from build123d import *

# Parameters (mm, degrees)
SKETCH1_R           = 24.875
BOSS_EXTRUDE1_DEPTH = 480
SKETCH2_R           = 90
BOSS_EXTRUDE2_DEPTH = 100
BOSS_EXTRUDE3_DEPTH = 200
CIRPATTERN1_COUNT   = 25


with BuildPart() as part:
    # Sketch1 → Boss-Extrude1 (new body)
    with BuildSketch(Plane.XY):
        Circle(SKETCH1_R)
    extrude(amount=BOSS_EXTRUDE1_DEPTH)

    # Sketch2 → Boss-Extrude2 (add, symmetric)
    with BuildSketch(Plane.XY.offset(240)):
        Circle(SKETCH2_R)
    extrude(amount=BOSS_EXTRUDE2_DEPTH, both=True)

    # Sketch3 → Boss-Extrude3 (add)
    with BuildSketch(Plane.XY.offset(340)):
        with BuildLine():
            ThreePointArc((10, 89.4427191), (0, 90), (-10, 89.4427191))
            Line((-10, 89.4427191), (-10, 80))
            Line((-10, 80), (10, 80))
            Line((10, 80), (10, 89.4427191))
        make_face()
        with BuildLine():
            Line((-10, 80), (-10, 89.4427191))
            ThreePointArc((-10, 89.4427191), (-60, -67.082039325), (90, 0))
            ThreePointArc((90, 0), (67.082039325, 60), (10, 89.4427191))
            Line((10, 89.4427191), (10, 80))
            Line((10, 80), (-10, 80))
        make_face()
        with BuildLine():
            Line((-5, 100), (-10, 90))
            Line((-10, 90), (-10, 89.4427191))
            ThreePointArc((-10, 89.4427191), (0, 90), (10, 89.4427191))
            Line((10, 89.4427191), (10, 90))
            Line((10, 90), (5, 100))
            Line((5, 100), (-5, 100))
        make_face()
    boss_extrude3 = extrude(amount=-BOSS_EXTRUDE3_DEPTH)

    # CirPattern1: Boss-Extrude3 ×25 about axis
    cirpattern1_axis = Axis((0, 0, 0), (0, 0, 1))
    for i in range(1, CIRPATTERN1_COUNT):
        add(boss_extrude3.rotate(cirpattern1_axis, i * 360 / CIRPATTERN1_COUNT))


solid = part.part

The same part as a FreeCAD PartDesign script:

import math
import FreeCAD as App
import Part
import Sketcher
Q = App.Units.Quantity

doc = App.newDocument("Part")
params = doc.addObject("Spreadsheet::Sheet", "Params")
for row, (alias, value) in enumerate([
    ("sketch1_diameter", "49.75 mm"),
    ("pad1_length", "480 mm"),
    ("sketch2_diameter", "180 mm"),
    ("pad2_length", "200 mm"),
    ("sketch3_radius", "90 mm"),
    ("sketch3_width", "10 mm"),
    ("pad3_length", "200 mm"),
], start=1):
    params.set(f"A{row}", alias)
    params.set(f"B{row}", "=" + value)
    params.setAlias(f"B{row}", alias)

body = doc.addObject("PartDesign::Body", "Body")

sketch1 = body.newObject("Sketcher::SketchObject", "Sketch")
sketch1.AttachmentSupport = (doc.getObject("XY_Plane"), [""])
sketch1.MapMode = "FlatFace"
sketch1.addGeometry(Part.Circle(App.Vector(0, 0, 0), App.Vector(0, 0, 1), 25), False)
sketch1.addConstraint(Sketcher.Constraint("Coincident", 0, 3, -1, 1))
sketch1.addConstraint(Sketcher.Constraint("Diameter", 0, Q("49.75 mm")))
sketch1.setExpression("Constraints[1]", "Params.sketch1_diameter")
pad1 = body.newObject("PartDesign::Pad", "Pad")
pad1.Profile = sketch1
pad1.setExpression("Length", "Params.pad1_length")

sketch2 = body.newObject("Sketcher::SketchObject", "Sketch001")
sketch2.AttachmentSupport = (doc.getObject("XY_Plane"), [""])
sketch2.MapMode = "FlatFace"
sketch2.AttachmentOffset = App.Placement(App.Vector(0, 0, 240), App.Rotation())
sketch2.addGeometry(Part.Circle(App.Vector(0, 0, 0), App.Vector(0, 0, 1), 90), False)
sketch2.addConstraint(Sketcher.Constraint("Coincident", 0, 3, -1, 1))
sketch2.addConstraint(Sketcher.Constraint("Diameter", 0, Q("180 mm")))
sketch2.setExpression("Constraints[1]", "Params.sketch2_diameter")
pad2 = body.newObject("PartDesign::Pad", "Pad001")
pad2.Profile = sketch2
pad2.setExpression("Length", "Params.pad2_length")
pad2.Midplane = True

sketch3 = body.newObject("Sketcher::SketchObject", "Sketch002")
sketch3.AttachmentSupport = (doc.getObject("XY_Plane"), [""])
sketch3.MapMode = "FlatFace"
sketch3.AttachmentOffset = App.Placement(App.Vector(0, 0, 340), App.Rotation())
sketch3.addGeometry(Part.ArcOfCircle(Part.Circle(App.Vector(0, 0, 0), App.Vector(0, 0, 1), 90), math.radians(96), math.radians(444)), False)
sketch3.addGeometry(Part.LineSegment(App.Vector(10, 89.4, 0), App.Vector(10, 90, 0)), False)
sketch3.addGeometry(Part.LineSegment(App.Vector(10, 90, 0), App.Vector(5, 100, 0)), False)
sketch3.addGeometry(Part.LineSegment(App.Vector(5, 100, 0), App.Vector(-5, 100, 0)), False)
sketch3.addGeometry(Part.LineSegment(App.Vector(-5, 100, 0), App.Vector(-10, 90, 0)), False)
sketch3.addGeometry(Part.LineSegment(App.Vector(-10, 90, 0), App.Vector(-10, 89.4, 0)), False)
sketch3.addConstraint(Sketcher.Constraint("Coincident", 0, 2, 1, 1))
sketch3.addConstraint(Sketcher.Constraint("Coincident", 1, 2, 2, 1))
sketch3.addConstraint(Sketcher.Constraint("Coincident", 2, 2, 3, 1))
sketch3.addConstraint(Sketcher.Constraint("Coincident", 3, 2, 4, 1))
sketch3.addConstraint(Sketcher.Constraint("Coincident", 4, 2, 5, 1))
sketch3.addConstraint(Sketcher.Constraint("Coincident", 5, 2, 0, 1))
sketch3.addConstraint(Sketcher.Constraint("Vertical", 1))
sketch3.addConstraint(Sketcher.Constraint("Horizontal", 3))
sketch3.addConstraint(Sketcher.Constraint("Vertical", 5))
sketch3.addConstraint(Sketcher.Constraint("Coincident", 0, 3, -1, 1))
sketch3.addConstraint(Sketcher.Constraint("Symmetric", 1, 2, 4, 2, -2))
sketch3.addConstraint(Sketcher.Constraint("Equal", 2, 4))
sketch3.addConstraint(Sketcher.Constraint("Radius", 0, Q("90 mm")))
sketch3.addConstraint(Sketcher.Constraint("DistanceX", 3, 2, 3, 1, Q("10 mm")))
sketch3.addConstraint(Sketcher.Constraint("DistanceX", -1, 1, 0, 2, Q("10 mm")))
sketch3.addConstraint(Sketcher.Constraint("DistanceY", -1, 1, 1, 2, Q("90 mm")))
sketch3.addConstraint(Sketcher.Constraint("DistanceY", -1, 1, 2, 2, Q("100 mm")))
sketch3.setExpression("Constraints[12]", "Params.sketch3_radius")
sketch3.setExpression("Constraints[13]", "Params.sketch3_width")
pad3 = body.newObject("PartDesign::Pad", "Pad002")
pad3.Profile = sketch3
pad3.setExpression("Length", "Params.pad3_length")
pad3.Reversed = True
doc.recompute()

polarpattern = body.newObject("PartDesign::PolarPattern", "PolarPattern")
polarpattern.Originals = [pad3]
polarpattern.Axis = (doc.getObject("Z_Axis"), [""])
polarpattern.Angle = 360
polarpattern.Occurrences = 25
body.Tip = polarpattern

doc.recompute()
